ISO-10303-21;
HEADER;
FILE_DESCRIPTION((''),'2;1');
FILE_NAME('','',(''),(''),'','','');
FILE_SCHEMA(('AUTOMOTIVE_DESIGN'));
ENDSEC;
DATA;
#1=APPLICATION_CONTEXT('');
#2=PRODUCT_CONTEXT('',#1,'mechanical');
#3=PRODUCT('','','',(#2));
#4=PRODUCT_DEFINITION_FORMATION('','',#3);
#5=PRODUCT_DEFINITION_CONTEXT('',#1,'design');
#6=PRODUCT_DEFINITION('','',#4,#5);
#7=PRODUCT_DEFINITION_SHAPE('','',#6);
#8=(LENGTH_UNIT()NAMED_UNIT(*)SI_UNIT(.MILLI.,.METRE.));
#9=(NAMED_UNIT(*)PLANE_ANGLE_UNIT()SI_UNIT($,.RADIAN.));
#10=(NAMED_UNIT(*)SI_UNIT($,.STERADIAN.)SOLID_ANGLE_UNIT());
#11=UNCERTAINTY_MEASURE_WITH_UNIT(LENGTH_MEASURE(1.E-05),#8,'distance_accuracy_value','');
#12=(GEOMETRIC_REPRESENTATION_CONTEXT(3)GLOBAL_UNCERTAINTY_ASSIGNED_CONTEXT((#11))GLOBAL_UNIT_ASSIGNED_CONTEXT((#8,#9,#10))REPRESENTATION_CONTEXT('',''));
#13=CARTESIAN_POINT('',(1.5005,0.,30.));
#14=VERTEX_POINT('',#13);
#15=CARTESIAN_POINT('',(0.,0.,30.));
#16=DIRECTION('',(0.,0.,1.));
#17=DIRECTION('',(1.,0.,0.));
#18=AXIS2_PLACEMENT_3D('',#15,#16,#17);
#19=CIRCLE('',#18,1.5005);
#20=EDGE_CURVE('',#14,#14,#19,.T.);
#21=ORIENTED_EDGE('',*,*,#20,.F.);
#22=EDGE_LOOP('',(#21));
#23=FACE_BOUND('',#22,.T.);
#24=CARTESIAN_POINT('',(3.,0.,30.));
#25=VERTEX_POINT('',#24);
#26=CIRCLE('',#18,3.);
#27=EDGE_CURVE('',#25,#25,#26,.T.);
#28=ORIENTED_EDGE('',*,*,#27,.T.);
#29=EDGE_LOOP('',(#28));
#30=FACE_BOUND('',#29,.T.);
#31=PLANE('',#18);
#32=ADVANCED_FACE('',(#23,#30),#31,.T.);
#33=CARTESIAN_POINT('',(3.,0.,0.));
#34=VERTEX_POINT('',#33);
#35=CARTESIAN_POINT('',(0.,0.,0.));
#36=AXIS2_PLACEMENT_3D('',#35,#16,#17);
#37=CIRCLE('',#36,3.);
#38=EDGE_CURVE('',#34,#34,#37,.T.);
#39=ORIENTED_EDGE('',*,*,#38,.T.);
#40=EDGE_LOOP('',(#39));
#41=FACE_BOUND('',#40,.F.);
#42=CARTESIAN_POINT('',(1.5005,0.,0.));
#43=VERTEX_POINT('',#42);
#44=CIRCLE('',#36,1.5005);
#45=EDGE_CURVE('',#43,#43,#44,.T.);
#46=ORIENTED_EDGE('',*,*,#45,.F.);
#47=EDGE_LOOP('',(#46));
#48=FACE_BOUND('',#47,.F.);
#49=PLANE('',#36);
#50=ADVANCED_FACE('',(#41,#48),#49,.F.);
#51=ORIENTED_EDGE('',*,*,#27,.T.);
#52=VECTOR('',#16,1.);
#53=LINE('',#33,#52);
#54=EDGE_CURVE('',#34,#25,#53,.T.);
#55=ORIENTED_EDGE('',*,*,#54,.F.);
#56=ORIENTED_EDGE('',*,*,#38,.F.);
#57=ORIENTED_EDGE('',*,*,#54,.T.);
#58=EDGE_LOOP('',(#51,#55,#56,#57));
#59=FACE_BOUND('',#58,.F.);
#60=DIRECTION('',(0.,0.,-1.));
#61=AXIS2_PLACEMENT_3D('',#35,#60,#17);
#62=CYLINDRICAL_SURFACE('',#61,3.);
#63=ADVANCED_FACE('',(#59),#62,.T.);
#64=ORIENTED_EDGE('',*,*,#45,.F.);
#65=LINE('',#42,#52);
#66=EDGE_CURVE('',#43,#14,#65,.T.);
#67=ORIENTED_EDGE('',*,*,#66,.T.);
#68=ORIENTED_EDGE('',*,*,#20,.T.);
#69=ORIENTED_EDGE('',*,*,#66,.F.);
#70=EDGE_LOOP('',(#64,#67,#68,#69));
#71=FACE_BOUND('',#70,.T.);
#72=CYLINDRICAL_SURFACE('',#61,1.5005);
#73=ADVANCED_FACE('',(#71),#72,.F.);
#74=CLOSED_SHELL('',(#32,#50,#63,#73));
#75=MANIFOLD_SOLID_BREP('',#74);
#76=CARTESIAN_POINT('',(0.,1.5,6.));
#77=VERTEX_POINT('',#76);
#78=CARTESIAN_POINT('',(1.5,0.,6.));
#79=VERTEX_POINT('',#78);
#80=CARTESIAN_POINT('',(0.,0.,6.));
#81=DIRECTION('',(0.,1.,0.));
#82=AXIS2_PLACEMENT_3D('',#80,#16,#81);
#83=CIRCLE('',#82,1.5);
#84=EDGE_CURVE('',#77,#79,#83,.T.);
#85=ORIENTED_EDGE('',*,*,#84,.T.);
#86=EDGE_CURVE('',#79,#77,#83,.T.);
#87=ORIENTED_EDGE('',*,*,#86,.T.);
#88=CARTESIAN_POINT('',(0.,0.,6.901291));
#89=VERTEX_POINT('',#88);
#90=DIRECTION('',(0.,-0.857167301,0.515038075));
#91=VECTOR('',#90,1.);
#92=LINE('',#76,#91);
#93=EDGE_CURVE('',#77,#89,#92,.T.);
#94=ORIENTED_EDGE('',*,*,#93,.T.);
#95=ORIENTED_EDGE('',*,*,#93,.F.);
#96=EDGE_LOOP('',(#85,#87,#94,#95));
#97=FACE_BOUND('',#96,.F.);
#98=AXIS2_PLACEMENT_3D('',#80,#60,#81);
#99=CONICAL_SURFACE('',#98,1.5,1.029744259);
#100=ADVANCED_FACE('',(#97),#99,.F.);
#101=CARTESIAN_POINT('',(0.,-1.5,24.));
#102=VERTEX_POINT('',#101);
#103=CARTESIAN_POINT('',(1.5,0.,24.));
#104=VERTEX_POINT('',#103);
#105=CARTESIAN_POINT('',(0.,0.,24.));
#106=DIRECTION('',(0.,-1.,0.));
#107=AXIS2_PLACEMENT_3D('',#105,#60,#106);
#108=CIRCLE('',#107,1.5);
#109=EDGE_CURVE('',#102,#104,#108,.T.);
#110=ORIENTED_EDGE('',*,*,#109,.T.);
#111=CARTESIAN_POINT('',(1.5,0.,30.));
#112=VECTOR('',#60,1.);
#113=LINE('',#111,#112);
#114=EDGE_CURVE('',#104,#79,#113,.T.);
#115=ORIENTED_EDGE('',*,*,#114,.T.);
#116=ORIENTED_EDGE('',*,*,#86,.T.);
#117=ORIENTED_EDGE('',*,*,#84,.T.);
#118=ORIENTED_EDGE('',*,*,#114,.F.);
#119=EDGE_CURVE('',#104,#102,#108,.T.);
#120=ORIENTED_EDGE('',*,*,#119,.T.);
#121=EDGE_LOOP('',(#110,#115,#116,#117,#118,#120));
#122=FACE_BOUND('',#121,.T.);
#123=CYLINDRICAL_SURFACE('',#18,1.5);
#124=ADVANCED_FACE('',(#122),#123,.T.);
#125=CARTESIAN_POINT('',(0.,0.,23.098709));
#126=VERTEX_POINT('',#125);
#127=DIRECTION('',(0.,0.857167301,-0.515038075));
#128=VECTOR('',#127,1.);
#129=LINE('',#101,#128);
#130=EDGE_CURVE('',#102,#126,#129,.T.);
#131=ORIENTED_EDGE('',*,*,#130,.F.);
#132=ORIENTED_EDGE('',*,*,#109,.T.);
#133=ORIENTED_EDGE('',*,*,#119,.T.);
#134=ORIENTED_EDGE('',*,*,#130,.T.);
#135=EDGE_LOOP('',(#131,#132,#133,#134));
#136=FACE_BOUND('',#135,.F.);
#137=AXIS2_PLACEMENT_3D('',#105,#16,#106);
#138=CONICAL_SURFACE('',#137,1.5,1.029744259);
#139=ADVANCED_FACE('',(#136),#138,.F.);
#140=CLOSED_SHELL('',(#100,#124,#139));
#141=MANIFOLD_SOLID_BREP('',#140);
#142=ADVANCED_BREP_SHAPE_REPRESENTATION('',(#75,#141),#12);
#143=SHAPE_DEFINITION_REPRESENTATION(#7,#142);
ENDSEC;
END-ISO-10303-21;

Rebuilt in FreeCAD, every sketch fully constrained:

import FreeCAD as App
import Part
import Sketcher
Q = App.Units.Quantity

doc = App.newDocument("Part")
body = doc.addObject("PartDesign::Body", "Body")
body.AllowCompound = True

# Sketch on XY plane
sketch1 = doc.addObject("Sketcher::SketchObject", "Sketch")
body.addObject(sketch1)
sketch1.AttachmentSupport = (doc.XY_Plane, [""])
sketch1.MapMode = "FlatFace"
sketch1.addGeometry([
    Part.Circle(App.Vector(0, 0, 0), App.Vector(0, 0, 1), 3),
    Part.Circle(App.Vector(0, 0, 0), App.Vector(0, 0, 1), 1.5005),
], False)
sketch1.addConstraint([
    Sketcher.Constraint("Coincident", 0, 3, -1, 1),
    Sketcher.Constraint("Coincident", 1, 3, -1, 1),
    Sketcher.Constraint("Diameter", 0, Q("6 mm")),
    Sketcher.Constraint("Diameter", 1, Q("3.001 mm")),
])
pad1 = doc.addObject("PartDesign::Pad", "Pad")
body.addObject(pad1)
pad1.Profile = sketch1
pad1.Length = 30

# Sketch on XY plane
sketch2 = doc.addObject("Sketcher::SketchObject", "Sketch001")
body.addObject(sketch2)
sketch2.AttachmentSupport = (doc.XY_Plane, [""])
sketch2.MapMode = "FlatFace"
sketch2.AttachmentOffset = App.Placement(App.Vector(0, 0, 30), App.Rotation())
sketch2.addGeometry(Part.Circle(App.Vector(0, 0, 0), App.Vector(0, 0, 1), 1.5), False)
sketch2.addConstraint([
    Sketcher.Constraint("Coincident", 0, 3, -1, 1),
    Sketcher.Constraint("Diameter", 0, Q("3 mm")),
])
pad2 = doc.addObject("PartDesign::Pad", "Pad001")
body.addObject(pad2)
pad2.Profile = sketch2
pad2.Length = 30
pad2.Reversed = True

# Sketch on XY plane
sketch3 = doc.addObject("Sketcher::SketchObject", "Sketch002")
body.addObject(sketch3)
sketch3.AttachmentSupport = (doc.XY_Plane, [""])
sketch3.MapMode = "FlatFace"
sketch3.AttachmentOffset = App.Placement(App.Vector(0, 0, 30), App.Rotation())
sketch3.addGeometry(Part.Circle(App.Vector(0, 0, 0), App.Vector(0, 0, 1), 1.5), False)
sketch3.addConstraint([
    Sketcher.Constraint("Coincident", 0, 3, -1, 1),
    Sketcher.Constraint("Diameter", 0, Q("3 mm")),
])
doc.recompute()
hole = doc.addObject("PartDesign::Hole", "Hole")
body.addObject(hole)
hole.Profile = sketch3
hole.ThreadType = "None"
hole.Diameter = 3
hole.DepthType = "Dimension"
hole.Depth = 6
hole.DrillPoint = "Angled"
hole.DrillPointAngle = 118

# Sketch on XY plane
sketch4 = doc.addObject("Sketcher::SketchObject", "Sketch003")
body.addObject(sketch4)
sketch4.AttachmentSupport = (doc.XY_Plane, [""])
sketch4.MapMode = "FlatFace"
sketch4.addGeometry(Part.Circle(App.Vector(0, 0, 0), App.Vector(0, 0, 1), 1.5), False)
sketch4.addConstraint([
    Sketcher.Constraint("Coincident", 0, 3, -1, 1),
    Sketcher.Constraint("Diameter", 0, Q("3 mm")),
])
doc.recompute()
hole2 = doc.addObject("PartDesign::Hole", "Hole001")
body.addObject(hole2)
hole2.Profile = sketch4
hole2.ThreadType = "None"
hole2.Diameter = 3
hole2.DepthType = "Dimension"
hole2.Depth = 6
hole2.DrillPoint = "Angled"
hole2.DrillPointAngle = 118
hole2.Reversed = True

doc.recompute()
